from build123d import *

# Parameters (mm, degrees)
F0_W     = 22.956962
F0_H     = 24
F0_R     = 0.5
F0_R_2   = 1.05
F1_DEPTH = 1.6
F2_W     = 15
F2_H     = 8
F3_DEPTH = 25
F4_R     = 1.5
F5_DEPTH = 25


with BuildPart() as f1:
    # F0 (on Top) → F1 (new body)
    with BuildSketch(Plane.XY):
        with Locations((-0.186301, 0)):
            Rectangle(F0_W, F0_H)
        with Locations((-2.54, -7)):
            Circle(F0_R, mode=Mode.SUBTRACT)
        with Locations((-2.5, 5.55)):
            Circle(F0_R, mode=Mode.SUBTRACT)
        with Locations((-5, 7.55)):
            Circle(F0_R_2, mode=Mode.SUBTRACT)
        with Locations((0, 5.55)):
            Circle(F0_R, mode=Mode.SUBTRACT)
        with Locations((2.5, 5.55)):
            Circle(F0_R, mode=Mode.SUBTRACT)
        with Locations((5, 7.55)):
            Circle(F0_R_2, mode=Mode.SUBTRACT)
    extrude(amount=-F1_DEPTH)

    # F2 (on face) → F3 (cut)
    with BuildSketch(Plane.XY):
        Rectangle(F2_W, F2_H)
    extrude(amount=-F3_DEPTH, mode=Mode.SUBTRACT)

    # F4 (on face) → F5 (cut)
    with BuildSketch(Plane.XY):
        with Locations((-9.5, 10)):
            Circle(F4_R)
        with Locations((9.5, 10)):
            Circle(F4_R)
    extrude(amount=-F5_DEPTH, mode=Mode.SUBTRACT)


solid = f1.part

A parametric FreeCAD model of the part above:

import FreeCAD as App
import Part
import Sketcher
from FreeCAD import Vector

doc = App.newDocument("Part")
body = doc.addObject("PartDesign::Body", "Body")

# Sketch on XY plane
sketch1 = body.newObject("Sketcher::SketchObject", "Sketch")
sketch1.AttachmentSupport = (doc.getObject("XY_Plane"), [""])
sketch1.MapMode = "FlatFace"
sketch1.addGeometry([
    Part.LineSegment(Vector(-11.7, 12, 0), Vector(-11.7, -12, 0)),  # 0
    Part.LineSegment(Vector(-11.7, -12, 0), Vector(11.3, -12, 0)),  # 1
    Part.LineSegment(Vector(11.3, -12, 0), Vector(11.3, 12, 0)),  # 2
    Part.LineSegment(Vector(11.3, 12, 0), Vector(-11.7, 12, 0)),  # 3
    Part.Circle(Vector(-2.5, -7, 0), Vector(0, 0, 1), 0.5),  # 4
    Part.Circle(Vector(-5, 7.5, 0), Vector(0, 0, 1), 1.1),  # 5
    Part.Circle(Vector(-2.5, 5.5, 0), Vector(0, 0, 1), 0.5),  # 6
    Part.Circle(Vector(0, 5.5, 0), Vector(0, 0, 1), 0.5),  # 7
    Part.Circle(Vector(2.5, 5.5, 0), Vector(0, 0, 1), 0.5),  # 8
    Part.Circle(Vector(5, 7.5, 0), Vector(0, 0, 1), 1.1),  # 9
], False)
sketch1.addConstraint([
    Sketcher.Constraint("Coincident", 0, 2, 1, 1),
    Sketcher.Constraint("Coincident", 1, 2, 2, 1),
    Sketcher.Constraint("Coincident", 2, 2, 3, 1),
    Sketcher.Constraint("Coincident", 3, 2, 0, 1),
    Sketcher.Constraint("Vertical", 0),
    Sketcher.Constraint("Horizontal", 1),
    Sketcher.Constraint("Vertical", 2),
    Sketcher.Constraint("Horizontal", 3),
    Sketcher.Constraint("Equal", 4, 6),
    Sketcher.Constraint("Equal", 6, 7),
    Sketcher.Constraint("Equal", 7, 8),
    Sketcher.Constraint("Equal", 5, 9),
    Sketcher.Constraint("Symmetric", 6, 3, 8, 3, -2),
    Sketcher.Constraint("Symmetric", 5, 3, 9, 3, -2),
    Sketcher.Constraint("PointOnObject", 7, 3, -2),
    Sketcher.Constraint("Horizontal", 6, 3, 7, 3),
    Sketcher.Constraint("Diameter", 4, 1.0),
    Sketcher.Constraint("Diameter", 5, 2.1),
    Sketcher.Constraint("DistanceY", 0, 2, 0, 1, 24.0),
    Sketcher.Constraint("DistanceY", 4, 3, -1, 1, 7.0),
    Sketcher.Constraint("DistanceX", 5, 3, -1, 1, 5.0),
    Sketcher.Constraint("DistanceY", 0, 2, -1, 1, 12.0),
    Sketcher.Constraint("DistanceY", 6, 3, 5, 3, 2.0),
    Sketcher.Constraint("DistanceX", 6, 3, 8, 3, 5.0),
    Sketcher.Constraint("DistanceX", 4, 3, -1, 1, 2.54),
    Sketcher.Constraint("DistanceY", -1, 1, 5, 3, 7.55),
    Sketcher.Constraint("DistanceX", 1, 1, 1, 2, 22.956962),
    Sketcher.Constraint("DistanceX", -1, 1, 1, 2, 11.29218),
])
pad1 = body.newObject("PartDesign::Pad", "Pad")
pad1.Profile = sketch1
pad1.Length = 1.6
pad1.Reversed = True

# Sketch on XY plane
sketch2 = body.newObject("Sketcher::SketchObject", "Sketch001")
sketch2.AttachmentSupport = (doc.getObject("XY_Plane"), [""])
sketch2.MapMode = "FlatFace"
sketch2.addGeometry([
    Part.LineSegment(Vector(-8, 4, 0), Vector(-8, -4, 0)),
    Part.LineSegment(Vector(-8, -4, 0), Vector(8, -4, 0)),
    Part.LineSegment(Vector(8, -4, 0), Vector(8, 4, 0)),
    Part.LineSegment(Vector(8, 4, 0), Vector(-8, 4, 0)),
], False)
sketch2.addConstraint([
    Sketcher.Constraint("Coincident", 0, 2, 1, 1),
    Sketcher.Constraint("Coincident", 1, 2, 2, 1),
    Sketcher.Constraint("Coincident", 2, 2, 3, 1),
    Sketcher.Constraint("Coincident", 3, 2, 0, 1),
    Sketcher.Constraint("Vertical", 0),
    Sketcher.Constraint("Horizontal", 1),
    Sketcher.Constraint("Vertical", 2),
    Sketcher.Constraint("Horizontal", 3),
    Sketcher.Constraint("Symmetric", 0, 2, 2, 2, -1, 1),
    Sketcher.Constraint("DistanceX", 1, 1, 1, 2, 15.0),
    Sketcher.Constraint("DistanceY", 0, 2, 0, 1, 8.0),
])
pocket1 = body.newObject("PartDesign::Pocket", "Pocket")
pocket1.Profile = sketch2
pocket1.Length = 25

# Sketch on XY plane
sketch3 = body.newObject("Sketcher::SketchObject", "Sketch002")
sketch3.AttachmentSupport = (doc.getObject("XY_Plane"), [""])
sketch3.MapMode = "FlatFace"
sketch3.addGeometry([
    Part.Circle(Vector(-9.5, 10, 0), Vector(0, 0, 1), 1.5),
    Part.Circle(Vector(9.5, 10, 0), Vector(0, 0, 1), 1.5),
], False)
sketch3.addConstraint([
    Sketcher.Constraint("Equal", 0, 1),
    Sketcher.Constraint("Symmetric", 0, 3, 1, 3, -2),
    Sketcher.Constraint("Diameter", 0, 3.0),
    Sketcher.Constraint("DistanceY", -1, 1, 0, 3, 10.0),
    Sketcher.Constraint("DistanceX", 0, 3, 1, 3, 19.0),
])
pocket2 = body.newObject("PartDesign::Pocket", "Pocket001")
pocket2.Profile = sketch3
pocket2.Length = 25

doc.recompute()
